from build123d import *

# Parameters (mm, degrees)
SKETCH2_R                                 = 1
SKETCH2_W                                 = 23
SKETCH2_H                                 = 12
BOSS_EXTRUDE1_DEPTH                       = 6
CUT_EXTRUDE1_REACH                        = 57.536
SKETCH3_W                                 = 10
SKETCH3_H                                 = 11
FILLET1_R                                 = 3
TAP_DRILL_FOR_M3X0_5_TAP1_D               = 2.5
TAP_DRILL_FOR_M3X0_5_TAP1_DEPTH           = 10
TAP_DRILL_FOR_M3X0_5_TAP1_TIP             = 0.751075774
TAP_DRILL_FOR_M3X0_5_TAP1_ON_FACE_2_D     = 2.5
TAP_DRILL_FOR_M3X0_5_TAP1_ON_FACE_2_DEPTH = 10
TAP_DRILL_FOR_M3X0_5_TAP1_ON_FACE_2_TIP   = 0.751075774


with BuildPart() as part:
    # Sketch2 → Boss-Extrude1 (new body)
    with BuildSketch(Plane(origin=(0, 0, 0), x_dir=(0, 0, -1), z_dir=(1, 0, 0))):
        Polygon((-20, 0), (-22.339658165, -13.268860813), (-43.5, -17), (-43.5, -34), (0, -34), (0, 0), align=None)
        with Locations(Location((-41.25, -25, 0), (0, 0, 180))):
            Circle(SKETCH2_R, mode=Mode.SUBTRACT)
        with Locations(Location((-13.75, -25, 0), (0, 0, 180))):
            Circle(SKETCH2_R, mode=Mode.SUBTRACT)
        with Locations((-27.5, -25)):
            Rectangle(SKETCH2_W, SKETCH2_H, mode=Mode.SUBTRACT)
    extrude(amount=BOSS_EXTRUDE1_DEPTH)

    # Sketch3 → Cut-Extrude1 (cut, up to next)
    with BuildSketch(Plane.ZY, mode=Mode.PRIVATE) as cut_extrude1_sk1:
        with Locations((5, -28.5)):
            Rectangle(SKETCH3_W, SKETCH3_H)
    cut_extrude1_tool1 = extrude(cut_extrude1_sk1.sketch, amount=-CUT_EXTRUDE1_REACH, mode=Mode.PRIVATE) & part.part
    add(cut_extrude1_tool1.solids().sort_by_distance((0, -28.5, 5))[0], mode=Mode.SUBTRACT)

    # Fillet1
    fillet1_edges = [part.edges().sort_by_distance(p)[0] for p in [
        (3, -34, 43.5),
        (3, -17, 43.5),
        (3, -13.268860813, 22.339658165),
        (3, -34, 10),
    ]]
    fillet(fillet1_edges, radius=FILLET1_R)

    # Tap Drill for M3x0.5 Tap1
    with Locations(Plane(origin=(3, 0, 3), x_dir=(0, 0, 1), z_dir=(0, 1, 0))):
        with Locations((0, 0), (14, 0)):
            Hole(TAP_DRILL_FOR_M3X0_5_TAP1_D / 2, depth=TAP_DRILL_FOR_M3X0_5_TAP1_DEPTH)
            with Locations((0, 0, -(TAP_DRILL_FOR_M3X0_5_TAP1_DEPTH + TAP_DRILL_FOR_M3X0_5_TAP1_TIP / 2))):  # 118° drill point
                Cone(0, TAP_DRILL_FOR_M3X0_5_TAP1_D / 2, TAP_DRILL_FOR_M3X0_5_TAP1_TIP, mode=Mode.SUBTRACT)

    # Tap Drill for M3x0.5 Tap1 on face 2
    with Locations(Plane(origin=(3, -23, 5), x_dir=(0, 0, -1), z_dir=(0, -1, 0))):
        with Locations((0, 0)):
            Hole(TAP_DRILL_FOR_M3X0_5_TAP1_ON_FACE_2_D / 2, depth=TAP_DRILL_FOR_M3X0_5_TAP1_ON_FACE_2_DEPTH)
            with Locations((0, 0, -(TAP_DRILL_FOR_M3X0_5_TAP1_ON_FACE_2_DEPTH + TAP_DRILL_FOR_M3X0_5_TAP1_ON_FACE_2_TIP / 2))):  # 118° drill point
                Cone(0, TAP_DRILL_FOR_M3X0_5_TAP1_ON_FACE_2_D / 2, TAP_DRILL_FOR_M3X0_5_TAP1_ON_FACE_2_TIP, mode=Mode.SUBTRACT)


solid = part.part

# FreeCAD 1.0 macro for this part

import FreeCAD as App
import Part
import Sketcher
from FreeCAD import Vector
Q = App.Units.Quantity


def edges_at(feature, points):
    """Names of the edges that pass closest to the given points."""
    edges = feature.Shape.Edges
    near = lambda p: min(range(len(edges)), key=lambda i: edges[i].distToShape(Part.Vertex(*p))[0])
    return sorted({f"Edge{near(p) + 1}" for p in points})

doc = App.newDocument("Part")
body = doc.addObject("PartDesign::Body", "Body")

# Sketch on YZ plane
sketch1 = body.newObject("Sketcher::SketchObject", "Sketch")
sketch1.AttachmentSupport = (doc.getObject("YZ_Plane"), [""])
sketch1.MapMode = "FlatFace"
sketch1.addGeometry([
    Part.LineSegment(Vector(0, 20, 0), Vector(-13.3, 22.3, 0)),  # 0
    Part.LineSegment(Vector(-13.3, 22.3, 0), Vector(-17, 43.5, 0)),  # 1
    Part.LineSegment(Vector(-17, 43.5, 0), Vector(-34, 43.5, 0)),  # 2
    Part.LineSegment(Vector(-34, 43.5, 0), Vector(-34, 0, 0)),  # 3
    Part.LineSegment(Vector(-34, 0, 0), Vector(0, 0, 0)),  # 4
    Part.LineSegment(Vector(0, 0, 0), Vector(0, 20, 0)),  # 5
    Part.Circle(Vector(-25, 41.2, 0), Vector(0, 0, 1), 1),  # 6
    Part.LineSegment(Vector(-31, 16, 0), Vector(-31, 39, 0)),  # 7
    Part.LineSegment(Vector(-31, 39, 0), Vector(-19, 39, 0)),  # 8
    Part.LineSegment(Vector(-19, 39, 0), Vector(-19, 16, 0)),  # 9
    Part.LineSegment(Vector(-19, 16, 0), Vector(-31, 16, 0)),  # 10
    Part.Circle(Vector(-25, 13.8, 0), Vector(0, 0, 1), 1),  # 11
], False)
sketch1.addConstraint([
    Sketcher.Constraint("Coincident", 0, 2, 1, 1),
    Sketcher.Constraint("Coincident", 1, 2, 2, 1),
    Sketcher.Constraint("Coincident", 2, 2, 3, 1),
    Sketcher.Constraint("Coincident", 3, 2, 4, 1),
    Sketcher.Constraint("Coincident", 4, 2, 5, 1),
    Sketcher.Constraint("Coincident", 5, 2, 0, 1),
    Sketcher.Constraint("Coincident", 7, 2, 8, 1),
    Sketcher.Constraint("Coincident", 8, 2, 9, 1),
    Sketcher.Constraint("Coincident", 9, 2, 10, 1),
    Sketcher.Constraint("Coincident", 10, 2, 7, 1),
    Sketcher.Constraint("Horizontal", 2),
    Sketcher.Constraint("Vertical", 3),
    Sketcher.Constraint("Horizontal", 4),
    Sketcher.Constraint("Vertical", 5),
    Sketcher.Constraint("Vertical", 7),
    Sketcher.Constraint("Horizontal", 8),
    Sketcher.Constraint("Vertical", 9),
    Sketcher.Constraint("Horizontal", 10),
    Sketcher.Constraint("Coincident", 4, 2, -1, 1),
    Sketcher.Constraint("Equal", 6, 11),
    Sketcher.Constraint("Vertical", 6, 3, 11, 3),
    Sketcher.Constraint("Diameter", 6, 2.0),
    Sketcher.Constraint("DistanceX", 2, 2, 2, 1, 17.0),
    Sketcher.Constraint("DistanceX", 4, 1, 4, 2, 34.0),
    Sketcher.Constraint("DistanceX", 8, 1, 8, 2, 12.0),
    Sketcher.Constraint("DistanceY", 5, 1, 5, 2, 20.0),
    Sketcher.Constraint("DistanceY", 7, 1, 7, 2, 23.0),
    Sketcher.Constraint("Angle", 0, Q("170 deg")),
    Sketcher.Constraint("Angle", 1, Q("100 deg")),
    Sketcher.Constraint("DistanceY", 3, 2, 3, 1, 43.5),
    Sketcher.Constraint("DistanceX", 6, 3, -1, 1, 25.0),
    Sketcher.Constraint("DistanceX", 7, 2, -1, 1, 31.0),
    Sketcher.Constraint("DistanceY", -1, 1, 7, 2, 39.0),
    Sketcher.Constraint("DistanceY", 11, 3, 6, 3, 27.5),
    Sketcher.Constraint("DistanceY", -1, 1, 6, 3, 41.25),
])
pad1 = body.newObject("PartDesign::Pad", "Pad")
pad1.Profile = sketch1
pad1.Length = 6

# Sketch on YZ plane
sketch2 = body.newObject("Sketcher::SketchObject", "Sketch001")
sketch2.AttachmentSupport = (doc.getObject("YZ_Plane"), [""])
sketch2.MapMode = "FlatFace"
sketch2.addGeometry([
    Part.LineSegment(Vector(-23, 0, 0), Vector(-34, 0, 0)),
    Part.LineSegment(Vector(-34, 0, 0), Vector(-34, 10, 0)),
    Part.LineSegment(Vector(-34, 10, 0), Vector(-23, 10, 0)),
    Part.LineSegment(Vector(-23, 10, 0), Vector(-23, 0, 0)),
], False)
sketch2.addConstraint([
    Sketcher.Constraint("Coincident", 0, 2, 1, 1),
    Sketcher.Constraint("Coincident", 1, 2, 2, 1),
    Sketcher.Constraint("Coincident", 2, 2, 3, 1),
    Sketcher.Constraint("Coincident", 3, 2, 0, 1),
    Sketcher.Constraint("Horizontal", 0),
    Sketcher.Constraint("Vertical", 1),
    Sketcher.Constraint("Horizontal", 2),
    Sketcher.Constraint("Vertical", 3),
    Sketcher.Constraint("PointOnObject", 0, 2, -1),
    Sketcher.Constraint("DistanceX", 0, 2, 0, 1, 11.0),
    Sketcher.Constraint("DistanceY", 1, 1, 1, 2, 10.0),
    Sketcher.Constraint("DistanceX", 0, 2, -1, 1, 34.0),
])
pocket1 = body.newObject("PartDesign::Pocket", "Pocket")
pocket1.Profile = sketch2
pocket1.Type = "UpToFirst"
pocket1.Reversed = True
doc.recompute()

fillet = body.newObject("PartDesign::Fillet", "Fillet")
fillet.Base = (pocket1, edges_at(pocket1, [
    (3, -34, 43.5),
    (3, -17, 43.5),
    (3, -13.269, 22.34),
    (3, -34, 10),
]))
fillet.Radius = 3

# Sketch on XZ plane
sketch3 = body.newObject("Sketcher::SketchObject", "Sketch002")
sketch3.AttachmentSupport = (doc.getObject("XZ_Plane"), [""])
sketch3.MapMode = "FlatFace"
sketch3.addGeometry([
    Part.Circle(Vector(3, 3, 0), Vector(0, 0, 1), 1.2),
    Part.Circle(Vector(3, 17, 0), Vector(0, 0, 1), 1.2),
], False)
sketch3.addConstraint([
    Sketcher.Constraint("Equal", 0, 1),
    Sketcher.Constraint("Vertical", 0, 3, 1, 3),
    Sketcher.Constraint("Diameter", 0, 2.5),
    Sketcher.Constraint("DistanceX", -1, 1, 0, 3, 3.0),
    Sketcher.Constraint("DistanceY", -1, 1, 0, 3, 3.0),
    Sketcher.Constraint("DistanceY", -1, 1, 1, 3, 17.0),
])
doc.recompute()
hole = body.newObject("PartDesign::Hole", "Hole")
hole.Profile = sketch3
hole.ThreadType = "None"
hole.Diameter = 2.5
hole.DepthType = "Dimension"
hole.Depth = 10
hole.DrillPoint = "Angled"
hole.DrillPointAngle = 118
hole.Reversed = True

# Sketch on XZ plane
sketch4 = body.newObject("Sketcher::SketchObject", "Sketch003")
sketch4.AttachmentSupport = (doc.getObject("XZ_Plane"), [""])
sketch4.MapMode = "FlatFace"
sketch4.AttachmentOffset = App.Placement(Vector(0, 0, 23), App.Rotation())
sketch4.addGeometry(Part.Circle(Vector(3, 5, 0), Vector(0, 0, 1), 1.2), False)
sketch4.addConstraint([
    Sketcher.Constraint("Diameter", 0, 2.5),
    Sketcher.Constraint("DistanceX", -1, 1, 0, 3, 3.0),
    Sketcher.Constraint("DistanceY", -1, 1, 0, 3, 5.0),
])
doc.recompute()
hole2 = body.newObject("PartDesign::Hole", "Hole001")
hole2.Profile = sketch4
hole2.ThreadType = "None"
hole2.Diameter = 2.5
hole2.DepthType = "Dimension"
hole2.Depth = 10
hole2.DrillPoint = "Angled"
hole2.DrillPointAngle = 118

doc.recompute()
